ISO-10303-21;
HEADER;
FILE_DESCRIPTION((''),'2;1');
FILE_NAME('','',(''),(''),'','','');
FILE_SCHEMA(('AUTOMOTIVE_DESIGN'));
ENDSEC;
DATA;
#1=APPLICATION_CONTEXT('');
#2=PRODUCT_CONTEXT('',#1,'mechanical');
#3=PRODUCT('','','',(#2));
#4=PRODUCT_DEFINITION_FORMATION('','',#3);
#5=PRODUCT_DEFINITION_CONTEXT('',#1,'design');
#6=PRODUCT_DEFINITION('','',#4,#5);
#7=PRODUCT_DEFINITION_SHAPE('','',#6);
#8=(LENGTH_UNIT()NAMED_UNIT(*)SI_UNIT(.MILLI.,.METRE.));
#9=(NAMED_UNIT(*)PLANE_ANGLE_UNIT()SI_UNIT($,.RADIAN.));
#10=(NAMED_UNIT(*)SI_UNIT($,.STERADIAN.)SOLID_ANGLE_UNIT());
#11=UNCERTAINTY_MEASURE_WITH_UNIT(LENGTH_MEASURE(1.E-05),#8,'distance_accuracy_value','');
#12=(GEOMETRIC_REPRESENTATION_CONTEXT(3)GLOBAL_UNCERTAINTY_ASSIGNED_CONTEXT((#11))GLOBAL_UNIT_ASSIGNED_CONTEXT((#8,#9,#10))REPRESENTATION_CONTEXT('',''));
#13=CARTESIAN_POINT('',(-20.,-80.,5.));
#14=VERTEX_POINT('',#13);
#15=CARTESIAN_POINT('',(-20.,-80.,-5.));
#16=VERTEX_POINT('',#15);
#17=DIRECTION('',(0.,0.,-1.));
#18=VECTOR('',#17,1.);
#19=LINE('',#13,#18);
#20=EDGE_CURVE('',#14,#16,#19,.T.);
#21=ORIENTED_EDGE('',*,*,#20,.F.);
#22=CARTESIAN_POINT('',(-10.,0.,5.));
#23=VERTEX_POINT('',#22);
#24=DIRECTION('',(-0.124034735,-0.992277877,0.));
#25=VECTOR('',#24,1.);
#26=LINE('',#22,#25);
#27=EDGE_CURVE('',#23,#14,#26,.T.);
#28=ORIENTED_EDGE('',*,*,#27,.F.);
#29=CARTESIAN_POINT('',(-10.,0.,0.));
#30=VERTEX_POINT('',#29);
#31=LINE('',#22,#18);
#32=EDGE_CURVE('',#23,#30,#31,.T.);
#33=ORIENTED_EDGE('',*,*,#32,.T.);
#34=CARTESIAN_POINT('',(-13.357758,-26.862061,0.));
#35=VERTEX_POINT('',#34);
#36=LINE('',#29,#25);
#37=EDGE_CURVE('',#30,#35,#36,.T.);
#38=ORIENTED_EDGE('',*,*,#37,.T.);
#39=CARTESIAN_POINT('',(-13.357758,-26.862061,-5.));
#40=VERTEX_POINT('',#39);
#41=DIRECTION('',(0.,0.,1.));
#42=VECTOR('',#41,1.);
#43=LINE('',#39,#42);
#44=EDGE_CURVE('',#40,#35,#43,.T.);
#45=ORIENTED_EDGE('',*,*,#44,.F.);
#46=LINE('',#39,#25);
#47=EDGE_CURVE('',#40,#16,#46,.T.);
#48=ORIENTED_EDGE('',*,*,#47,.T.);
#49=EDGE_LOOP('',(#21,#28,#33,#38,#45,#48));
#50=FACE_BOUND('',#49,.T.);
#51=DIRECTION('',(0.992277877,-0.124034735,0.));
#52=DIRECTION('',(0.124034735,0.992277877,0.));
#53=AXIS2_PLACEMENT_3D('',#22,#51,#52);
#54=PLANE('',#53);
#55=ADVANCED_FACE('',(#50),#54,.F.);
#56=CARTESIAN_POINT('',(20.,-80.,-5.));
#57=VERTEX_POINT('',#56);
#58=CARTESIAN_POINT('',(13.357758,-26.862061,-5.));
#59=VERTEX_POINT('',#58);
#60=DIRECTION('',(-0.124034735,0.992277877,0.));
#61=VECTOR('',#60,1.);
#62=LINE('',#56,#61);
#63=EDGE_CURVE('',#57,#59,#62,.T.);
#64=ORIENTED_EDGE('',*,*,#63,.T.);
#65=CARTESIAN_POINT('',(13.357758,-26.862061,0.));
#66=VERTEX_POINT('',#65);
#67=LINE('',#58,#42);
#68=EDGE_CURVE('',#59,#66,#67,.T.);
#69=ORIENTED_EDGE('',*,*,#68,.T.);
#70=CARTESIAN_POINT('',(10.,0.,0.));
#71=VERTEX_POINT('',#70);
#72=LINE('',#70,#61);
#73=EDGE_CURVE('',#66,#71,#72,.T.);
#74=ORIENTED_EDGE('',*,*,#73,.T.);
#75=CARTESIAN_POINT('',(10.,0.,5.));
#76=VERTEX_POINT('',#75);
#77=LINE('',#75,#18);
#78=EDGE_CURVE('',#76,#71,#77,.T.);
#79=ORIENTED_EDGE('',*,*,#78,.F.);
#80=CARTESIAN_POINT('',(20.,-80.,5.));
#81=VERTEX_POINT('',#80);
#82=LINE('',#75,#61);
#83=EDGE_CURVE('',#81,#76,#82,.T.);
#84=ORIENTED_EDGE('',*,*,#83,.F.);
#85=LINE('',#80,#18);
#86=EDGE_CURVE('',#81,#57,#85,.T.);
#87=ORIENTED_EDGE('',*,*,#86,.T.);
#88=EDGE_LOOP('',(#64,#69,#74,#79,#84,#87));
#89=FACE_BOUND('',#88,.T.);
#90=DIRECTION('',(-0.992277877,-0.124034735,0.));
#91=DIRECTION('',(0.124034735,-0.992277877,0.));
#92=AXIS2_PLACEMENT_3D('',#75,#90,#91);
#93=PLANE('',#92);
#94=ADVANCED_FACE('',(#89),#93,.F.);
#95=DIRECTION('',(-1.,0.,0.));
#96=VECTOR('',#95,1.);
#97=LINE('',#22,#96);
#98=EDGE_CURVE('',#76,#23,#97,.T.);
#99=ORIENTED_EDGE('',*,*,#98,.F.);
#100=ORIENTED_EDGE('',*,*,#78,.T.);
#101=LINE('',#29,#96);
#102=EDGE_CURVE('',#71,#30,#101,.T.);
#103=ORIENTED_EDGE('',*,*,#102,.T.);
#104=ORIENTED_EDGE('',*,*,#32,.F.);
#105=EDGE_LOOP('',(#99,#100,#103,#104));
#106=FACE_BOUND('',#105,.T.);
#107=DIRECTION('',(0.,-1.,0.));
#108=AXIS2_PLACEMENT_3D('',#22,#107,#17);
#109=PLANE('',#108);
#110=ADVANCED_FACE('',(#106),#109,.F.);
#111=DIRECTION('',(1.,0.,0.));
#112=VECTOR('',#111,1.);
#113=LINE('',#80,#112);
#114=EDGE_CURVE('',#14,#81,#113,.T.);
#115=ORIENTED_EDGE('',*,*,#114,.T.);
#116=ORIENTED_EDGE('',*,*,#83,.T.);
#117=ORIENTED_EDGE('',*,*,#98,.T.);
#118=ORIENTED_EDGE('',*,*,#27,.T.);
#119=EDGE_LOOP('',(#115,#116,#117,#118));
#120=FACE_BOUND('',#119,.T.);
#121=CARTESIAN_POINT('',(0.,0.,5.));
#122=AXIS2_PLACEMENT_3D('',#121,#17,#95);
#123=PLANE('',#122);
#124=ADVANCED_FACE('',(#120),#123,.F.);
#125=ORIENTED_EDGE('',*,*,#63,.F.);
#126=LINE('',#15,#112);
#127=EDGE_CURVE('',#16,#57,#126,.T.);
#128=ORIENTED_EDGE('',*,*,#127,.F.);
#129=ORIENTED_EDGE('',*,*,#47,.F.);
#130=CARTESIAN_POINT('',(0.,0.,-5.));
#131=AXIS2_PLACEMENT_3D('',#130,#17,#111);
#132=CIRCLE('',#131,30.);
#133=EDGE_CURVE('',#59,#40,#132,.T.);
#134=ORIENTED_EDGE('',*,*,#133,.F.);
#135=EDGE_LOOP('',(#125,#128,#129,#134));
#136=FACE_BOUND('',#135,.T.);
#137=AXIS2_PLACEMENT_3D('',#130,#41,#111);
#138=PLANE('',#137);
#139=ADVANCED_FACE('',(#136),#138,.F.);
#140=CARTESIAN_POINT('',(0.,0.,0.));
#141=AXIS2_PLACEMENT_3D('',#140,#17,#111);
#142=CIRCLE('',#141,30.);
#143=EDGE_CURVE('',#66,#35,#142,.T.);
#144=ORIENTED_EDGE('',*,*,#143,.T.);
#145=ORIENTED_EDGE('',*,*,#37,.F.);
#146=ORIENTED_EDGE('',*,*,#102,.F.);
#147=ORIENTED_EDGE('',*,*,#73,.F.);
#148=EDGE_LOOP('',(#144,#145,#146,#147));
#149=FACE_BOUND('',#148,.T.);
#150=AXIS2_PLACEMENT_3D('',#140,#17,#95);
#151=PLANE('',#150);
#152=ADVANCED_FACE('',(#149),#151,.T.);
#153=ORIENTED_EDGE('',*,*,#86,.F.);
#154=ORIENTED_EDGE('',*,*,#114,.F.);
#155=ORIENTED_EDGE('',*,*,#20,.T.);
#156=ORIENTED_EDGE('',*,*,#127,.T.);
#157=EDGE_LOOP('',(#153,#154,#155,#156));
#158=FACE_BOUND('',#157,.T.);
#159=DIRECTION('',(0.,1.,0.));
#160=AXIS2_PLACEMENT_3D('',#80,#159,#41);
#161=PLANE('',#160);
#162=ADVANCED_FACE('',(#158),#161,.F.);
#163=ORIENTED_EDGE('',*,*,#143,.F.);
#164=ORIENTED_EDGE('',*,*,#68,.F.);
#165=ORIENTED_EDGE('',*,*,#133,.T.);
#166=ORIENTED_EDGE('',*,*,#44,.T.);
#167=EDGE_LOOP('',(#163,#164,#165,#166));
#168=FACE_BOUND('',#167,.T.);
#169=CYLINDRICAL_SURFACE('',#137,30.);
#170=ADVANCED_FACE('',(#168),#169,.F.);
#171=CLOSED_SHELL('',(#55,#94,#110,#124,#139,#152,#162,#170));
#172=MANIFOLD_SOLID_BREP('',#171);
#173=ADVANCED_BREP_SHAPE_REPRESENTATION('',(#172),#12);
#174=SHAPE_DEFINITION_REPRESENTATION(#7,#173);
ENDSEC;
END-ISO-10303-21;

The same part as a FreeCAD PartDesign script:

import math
import FreeCAD as App
import Part
import Sketcher

doc = App.newDocument("Part")
body = doc.addObject("PartDesign::Body", "Body")

# Sketch on XY plane
sketch1 = body.newObject("Sketcher::SketchObject", "Sketch")
sketch1.AttachmentSupport = (doc.getObject("XY_Plane"), [""])
sketch1.MapMode = "FlatFace"
sketch1.addGeometry([
    Part.LineSegment(App.Vector(10, 0, 0), App.Vector(-10, 0, 0)),
    Part.LineSegment(App.Vector(-10, 0, 0), App.Vector(-20, -80, 0)),
    Part.LineSegment(App.Vector(-20, -80, 0), App.Vector(20, -80, 0)),
    Part.LineSegment(App.Vector(20, -80, 0), App.Vector(10, 0, 0)),
], False)
sketch1.addConstraint([
    Sketcher.Constraint("Coincident", 0, 2, 1, 1),
    Sketcher.Constraint("Coincident", 1, 2, 2, 1),
    Sketcher.Constraint("Coincident", 2, 2, 3, 1),
    Sketcher.Constraint("Coincident", 3, 2, 0, 1),
    Sketcher.Constraint("Horizontal", 0),
    Sketcher.Constraint("Horizontal", 2),
    Sketcher.Constraint("Symmetric", 0, 2, 3, 2, -1, 1),
    Sketcher.Constraint("Equal", 1, 3),
    Sketcher.Constraint("DistanceX", 0, 2, 0, 1, 20.0),
    Sketcher.Constraint("DistanceX", 2, 1, 2, 2, 40.0),
    Sketcher.Constraint("DistanceY", 1, 2, -1, 1, 80.0),
])
pad1 = body.newObject("PartDesign::Pad", "Pad")
pad1.Profile = sketch1
pad1.Length = 5

# Sketch on XY plane
sketch2 = body.newObject("Sketcher::SketchObject", "Sketch001")
sketch2.AttachmentSupport = (doc.getObject("XY_Plane"), [""])
sketch2.MapMode = "FlatFace"
sketch2.addGeometry([
    Part.LineSegment(App.Vector(20, -80, 0), App.Vector(13, -27, 0)),
    Part.ArcOfCircle(Part.Circle(App.Vector(0, 0, 0), App.Vector(0, 0, 1), 30), math.radians(-116), math.radians(-64)),
    Part.LineSegment(App.Vector(-13, -27, 0), App.Vector(-20, -80, 0)),
    Part.LineSegment(App.Vector(-20, -80, 0), App.Vector(20, -80, 0)),
], False)
sketch2.addConstraint([
    Sketcher.Constraint("Coincident", 0, 2, 1, 2),
    Sketcher.Constraint("Coincident", 1, 1, 2, 1),
    Sketcher.Constraint("Coincident", 2, 2, 3, 1),
    Sketcher.Constraint("Coincident", 3, 2, 0, 1),
    Sketcher.Constraint("Horizontal", 3),
    Sketcher.Constraint("Coincident", 1, 3, -1, 1),
    Sketcher.Constraint("Horizontal", 0, 2, 1, 1),
    Sketcher.Constraint("Equal", 0, 2),
    Sketcher.Constraint("Radius", 1, 30.0),
    Sketcher.Constraint("DistanceX", 3, 1, 3, 2, 40.0),
    Sketcher.Constraint("DistanceY", 2, 2, -1, 1, 80.0),
    Sketcher.Constraint("Distance", 0, 53.55147),
])
pad2 = body.newObject("PartDesign::Pad", "Pad001")
pad2.Profile = sketch2
pad2.Length = 5
pad2.Reversed = True

doc.recompute()
